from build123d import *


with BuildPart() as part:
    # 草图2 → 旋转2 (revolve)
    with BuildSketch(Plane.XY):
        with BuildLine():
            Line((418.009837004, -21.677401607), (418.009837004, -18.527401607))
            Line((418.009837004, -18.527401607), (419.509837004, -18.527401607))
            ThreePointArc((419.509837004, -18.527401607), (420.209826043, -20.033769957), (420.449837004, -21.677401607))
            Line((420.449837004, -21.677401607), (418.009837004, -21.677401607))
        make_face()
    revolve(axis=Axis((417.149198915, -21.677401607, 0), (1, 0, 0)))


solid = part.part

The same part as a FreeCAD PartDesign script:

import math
import FreeCAD as App
import Part
import Sketcher

doc = App.newDocument("Part")
params = doc.addObject("Spreadsheet::Sheet", "Params")
for row, (alias, value) in enumerate([
    ("sketch1_width", "1.5 mm"),
    ("sketch1_width2", "2.44 mm"),
    ("sketch1_height", "3.15 mm"),
    ("revolution_angle", "360 deg"),
], start=1):
    params.set(f"A{row}", alias)
    params.set(f"B{row}", "=" + value)
    params.setAlias(f"B{row}", alias)

body = doc.addObject("PartDesign::Body", "Body")

# Sketch on XY plane
sketch1 = body.newObject("Sketcher::SketchObject", "Sketch")
sketch1.AttachmentSupport = (doc.getObject("XY_Plane"), [""])
sketch1.MapMode = "FlatFace"
sketch1.addGeometry([
    Part.LineSegment(App.Vector(418, -18.5, 0), App.Vector(418, -21.7, 0)),
    Part.LineSegment(App.Vector(418, -21.7, 0), App.Vector(420.4, -21.7, 0)),
    Part.ArcOfCircle(Part.Circle(App.Vector(414.7, -21.7, 0), App.Vector(0, 0, 1), 5.7), math.radians(0), math.radians(33)),
    Part.LineSegment(App.Vector(419.5, -18.5, 0), App.Vector(418, -18.5, 0)),
], False)
sketch1.addGeometry(Part.LineSegment(App.Vector(414.7, -21.7, 0), App.Vector(420.4, -21.7, 0)), True)  # axis
sketch1.addConstraint([
    Sketcher.Constraint("Coincident", 0, 2, 1, 1),
    Sketcher.Constraint("Coincident", 1, 2, 2, 1),
    Sketcher.Constraint("Coincident", 2, 2, 3, 1),
    Sketcher.Constraint("Coincident", 3, 2, 0, 1),
    Sketcher.Constraint("Vertical", 0),
    Sketcher.Constraint("Horizontal", 1),
    Sketcher.Constraint("Horizontal", 3),
    Sketcher.Constraint("Horizontal", 4),
    Sketcher.Constraint("Coincident", 4, 1, 2, 3),
    Sketcher.Constraint("Coincident", 4, 2, 1, 2),
    Sketcher.Constraint("DistanceX", 3, 2, 3, 1, 1.5),
    Sketcher.Constraint("DistanceX", 1, 1, 1, 2, 2.44),
    Sketcher.Constraint("DistanceY", 0, 2, 0, 1, 3.15),
    Sketcher.Constraint("DistanceY", 2, 3, -1, 1, 21.677402),
    Sketcher.Constraint("DistanceX", -1, 1, 2, 3, 414.701911),
])
sketch1.setExpression("Constraints[10]", "Params.sketch1_width")
sketch1.setExpression("Constraints[11]", "Params.sketch1_width2")
sketch1.setExpression("Constraints[12]", "Params.sketch1_height")
revolution = body.newObject("PartDesign::Revolution", "Revolution")
revolution.Profile = sketch1
revolution.ReferenceAxis = (sketch1, ["Axis0"])
revolution.setExpression("Angle", "Params.revolution_angle")

doc.recompute()
